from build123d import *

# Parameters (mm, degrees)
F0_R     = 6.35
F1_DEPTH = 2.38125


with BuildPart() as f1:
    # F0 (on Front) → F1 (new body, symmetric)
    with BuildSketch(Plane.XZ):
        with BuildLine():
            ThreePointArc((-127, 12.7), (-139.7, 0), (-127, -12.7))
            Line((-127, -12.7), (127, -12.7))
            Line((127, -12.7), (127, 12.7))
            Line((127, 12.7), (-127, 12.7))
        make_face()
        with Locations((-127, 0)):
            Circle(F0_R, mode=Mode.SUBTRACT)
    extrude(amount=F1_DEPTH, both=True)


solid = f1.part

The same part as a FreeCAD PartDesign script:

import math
import FreeCAD as App
import Part
import Sketcher
from FreeCAD import Vector
Q = App.Units.Quantity

doc = App.newDocument("Part")
body = doc.addObject("PartDesign::Body", "Body")

sketch1 = body.newObject("Sketcher::SketchObject", "Sketch")
sketch1.AttachmentSupport = (doc.getObject("XZ_Plane"), [""])
sketch1.MapMode = "FlatFace"
sketch1.addGeometry(Part.ArcOfCircle(Part.Circle(Vector(-127, 0, 0), Vector(0, 0, 1), 12.7), math.radians(90), math.radians(270)), False)
sketch1.addGeometry(Part.LineSegment(Vector(-127, -12.7, 0), Vector(127, -12.7, 0)), False)
sketch1.addGeometry(Part.LineSegment(Vector(127, -12.7, 0), Vector(127, 12.7, 0)), False)
sketch1.addGeometry(Part.LineSegment(Vector(127, 12.7, 0), Vector(-127, 12.7, 0)), False)
sketch1.addGeometry(Part.Circle(Vector(-127, 0, 0), Vector(0, 0, 1), 6.35), False)
sketch1.addConstraint(Sketcher.Constraint("Tangent", 0, 2, 1, 1))
sketch1.addConstraint(Sketcher.Constraint("Coincident", 1, 2, 2, 1))
sketch1.addConstraint(Sketcher.Constraint("Coincident", 2, 2, 3, 1))
sketch1.addConstraint(Sketcher.Constraint("Tangent", 3, 2, 0, 1))
sketch1.addConstraint(Sketcher.Constraint("Horizontal", 1))
sketch1.addConstraint(Sketcher.Constraint("Vertical", 2))
sketch1.addConstraint(Sketcher.Constraint("Horizontal", 3))
sketch1.addConstraint(Sketcher.Constraint("Coincident", 4, 3, 0, 3))
sketch1.addConstraint(Sketcher.Constraint("Symmetric", 0, 2, 2, 2, -1, 1))
sketch1.addConstraint(Sketcher.Constraint("Diameter", 4, Q("0.5 in")))
sketch1.addConstraint(Sketcher.Constraint("Radius", 0, Q("0.5 in")))
sketch1.addConstraint(Sketcher.Constraint("DistanceX", 1, 1, 1, 2, Q("10 in")))
pad1 = body.newObject("PartDesign::Pad", "Pad")
pad1.Profile = sketch1
pad1.Length = Q("0.1875 in")
pad1.Midplane = True

doc.recompute()
